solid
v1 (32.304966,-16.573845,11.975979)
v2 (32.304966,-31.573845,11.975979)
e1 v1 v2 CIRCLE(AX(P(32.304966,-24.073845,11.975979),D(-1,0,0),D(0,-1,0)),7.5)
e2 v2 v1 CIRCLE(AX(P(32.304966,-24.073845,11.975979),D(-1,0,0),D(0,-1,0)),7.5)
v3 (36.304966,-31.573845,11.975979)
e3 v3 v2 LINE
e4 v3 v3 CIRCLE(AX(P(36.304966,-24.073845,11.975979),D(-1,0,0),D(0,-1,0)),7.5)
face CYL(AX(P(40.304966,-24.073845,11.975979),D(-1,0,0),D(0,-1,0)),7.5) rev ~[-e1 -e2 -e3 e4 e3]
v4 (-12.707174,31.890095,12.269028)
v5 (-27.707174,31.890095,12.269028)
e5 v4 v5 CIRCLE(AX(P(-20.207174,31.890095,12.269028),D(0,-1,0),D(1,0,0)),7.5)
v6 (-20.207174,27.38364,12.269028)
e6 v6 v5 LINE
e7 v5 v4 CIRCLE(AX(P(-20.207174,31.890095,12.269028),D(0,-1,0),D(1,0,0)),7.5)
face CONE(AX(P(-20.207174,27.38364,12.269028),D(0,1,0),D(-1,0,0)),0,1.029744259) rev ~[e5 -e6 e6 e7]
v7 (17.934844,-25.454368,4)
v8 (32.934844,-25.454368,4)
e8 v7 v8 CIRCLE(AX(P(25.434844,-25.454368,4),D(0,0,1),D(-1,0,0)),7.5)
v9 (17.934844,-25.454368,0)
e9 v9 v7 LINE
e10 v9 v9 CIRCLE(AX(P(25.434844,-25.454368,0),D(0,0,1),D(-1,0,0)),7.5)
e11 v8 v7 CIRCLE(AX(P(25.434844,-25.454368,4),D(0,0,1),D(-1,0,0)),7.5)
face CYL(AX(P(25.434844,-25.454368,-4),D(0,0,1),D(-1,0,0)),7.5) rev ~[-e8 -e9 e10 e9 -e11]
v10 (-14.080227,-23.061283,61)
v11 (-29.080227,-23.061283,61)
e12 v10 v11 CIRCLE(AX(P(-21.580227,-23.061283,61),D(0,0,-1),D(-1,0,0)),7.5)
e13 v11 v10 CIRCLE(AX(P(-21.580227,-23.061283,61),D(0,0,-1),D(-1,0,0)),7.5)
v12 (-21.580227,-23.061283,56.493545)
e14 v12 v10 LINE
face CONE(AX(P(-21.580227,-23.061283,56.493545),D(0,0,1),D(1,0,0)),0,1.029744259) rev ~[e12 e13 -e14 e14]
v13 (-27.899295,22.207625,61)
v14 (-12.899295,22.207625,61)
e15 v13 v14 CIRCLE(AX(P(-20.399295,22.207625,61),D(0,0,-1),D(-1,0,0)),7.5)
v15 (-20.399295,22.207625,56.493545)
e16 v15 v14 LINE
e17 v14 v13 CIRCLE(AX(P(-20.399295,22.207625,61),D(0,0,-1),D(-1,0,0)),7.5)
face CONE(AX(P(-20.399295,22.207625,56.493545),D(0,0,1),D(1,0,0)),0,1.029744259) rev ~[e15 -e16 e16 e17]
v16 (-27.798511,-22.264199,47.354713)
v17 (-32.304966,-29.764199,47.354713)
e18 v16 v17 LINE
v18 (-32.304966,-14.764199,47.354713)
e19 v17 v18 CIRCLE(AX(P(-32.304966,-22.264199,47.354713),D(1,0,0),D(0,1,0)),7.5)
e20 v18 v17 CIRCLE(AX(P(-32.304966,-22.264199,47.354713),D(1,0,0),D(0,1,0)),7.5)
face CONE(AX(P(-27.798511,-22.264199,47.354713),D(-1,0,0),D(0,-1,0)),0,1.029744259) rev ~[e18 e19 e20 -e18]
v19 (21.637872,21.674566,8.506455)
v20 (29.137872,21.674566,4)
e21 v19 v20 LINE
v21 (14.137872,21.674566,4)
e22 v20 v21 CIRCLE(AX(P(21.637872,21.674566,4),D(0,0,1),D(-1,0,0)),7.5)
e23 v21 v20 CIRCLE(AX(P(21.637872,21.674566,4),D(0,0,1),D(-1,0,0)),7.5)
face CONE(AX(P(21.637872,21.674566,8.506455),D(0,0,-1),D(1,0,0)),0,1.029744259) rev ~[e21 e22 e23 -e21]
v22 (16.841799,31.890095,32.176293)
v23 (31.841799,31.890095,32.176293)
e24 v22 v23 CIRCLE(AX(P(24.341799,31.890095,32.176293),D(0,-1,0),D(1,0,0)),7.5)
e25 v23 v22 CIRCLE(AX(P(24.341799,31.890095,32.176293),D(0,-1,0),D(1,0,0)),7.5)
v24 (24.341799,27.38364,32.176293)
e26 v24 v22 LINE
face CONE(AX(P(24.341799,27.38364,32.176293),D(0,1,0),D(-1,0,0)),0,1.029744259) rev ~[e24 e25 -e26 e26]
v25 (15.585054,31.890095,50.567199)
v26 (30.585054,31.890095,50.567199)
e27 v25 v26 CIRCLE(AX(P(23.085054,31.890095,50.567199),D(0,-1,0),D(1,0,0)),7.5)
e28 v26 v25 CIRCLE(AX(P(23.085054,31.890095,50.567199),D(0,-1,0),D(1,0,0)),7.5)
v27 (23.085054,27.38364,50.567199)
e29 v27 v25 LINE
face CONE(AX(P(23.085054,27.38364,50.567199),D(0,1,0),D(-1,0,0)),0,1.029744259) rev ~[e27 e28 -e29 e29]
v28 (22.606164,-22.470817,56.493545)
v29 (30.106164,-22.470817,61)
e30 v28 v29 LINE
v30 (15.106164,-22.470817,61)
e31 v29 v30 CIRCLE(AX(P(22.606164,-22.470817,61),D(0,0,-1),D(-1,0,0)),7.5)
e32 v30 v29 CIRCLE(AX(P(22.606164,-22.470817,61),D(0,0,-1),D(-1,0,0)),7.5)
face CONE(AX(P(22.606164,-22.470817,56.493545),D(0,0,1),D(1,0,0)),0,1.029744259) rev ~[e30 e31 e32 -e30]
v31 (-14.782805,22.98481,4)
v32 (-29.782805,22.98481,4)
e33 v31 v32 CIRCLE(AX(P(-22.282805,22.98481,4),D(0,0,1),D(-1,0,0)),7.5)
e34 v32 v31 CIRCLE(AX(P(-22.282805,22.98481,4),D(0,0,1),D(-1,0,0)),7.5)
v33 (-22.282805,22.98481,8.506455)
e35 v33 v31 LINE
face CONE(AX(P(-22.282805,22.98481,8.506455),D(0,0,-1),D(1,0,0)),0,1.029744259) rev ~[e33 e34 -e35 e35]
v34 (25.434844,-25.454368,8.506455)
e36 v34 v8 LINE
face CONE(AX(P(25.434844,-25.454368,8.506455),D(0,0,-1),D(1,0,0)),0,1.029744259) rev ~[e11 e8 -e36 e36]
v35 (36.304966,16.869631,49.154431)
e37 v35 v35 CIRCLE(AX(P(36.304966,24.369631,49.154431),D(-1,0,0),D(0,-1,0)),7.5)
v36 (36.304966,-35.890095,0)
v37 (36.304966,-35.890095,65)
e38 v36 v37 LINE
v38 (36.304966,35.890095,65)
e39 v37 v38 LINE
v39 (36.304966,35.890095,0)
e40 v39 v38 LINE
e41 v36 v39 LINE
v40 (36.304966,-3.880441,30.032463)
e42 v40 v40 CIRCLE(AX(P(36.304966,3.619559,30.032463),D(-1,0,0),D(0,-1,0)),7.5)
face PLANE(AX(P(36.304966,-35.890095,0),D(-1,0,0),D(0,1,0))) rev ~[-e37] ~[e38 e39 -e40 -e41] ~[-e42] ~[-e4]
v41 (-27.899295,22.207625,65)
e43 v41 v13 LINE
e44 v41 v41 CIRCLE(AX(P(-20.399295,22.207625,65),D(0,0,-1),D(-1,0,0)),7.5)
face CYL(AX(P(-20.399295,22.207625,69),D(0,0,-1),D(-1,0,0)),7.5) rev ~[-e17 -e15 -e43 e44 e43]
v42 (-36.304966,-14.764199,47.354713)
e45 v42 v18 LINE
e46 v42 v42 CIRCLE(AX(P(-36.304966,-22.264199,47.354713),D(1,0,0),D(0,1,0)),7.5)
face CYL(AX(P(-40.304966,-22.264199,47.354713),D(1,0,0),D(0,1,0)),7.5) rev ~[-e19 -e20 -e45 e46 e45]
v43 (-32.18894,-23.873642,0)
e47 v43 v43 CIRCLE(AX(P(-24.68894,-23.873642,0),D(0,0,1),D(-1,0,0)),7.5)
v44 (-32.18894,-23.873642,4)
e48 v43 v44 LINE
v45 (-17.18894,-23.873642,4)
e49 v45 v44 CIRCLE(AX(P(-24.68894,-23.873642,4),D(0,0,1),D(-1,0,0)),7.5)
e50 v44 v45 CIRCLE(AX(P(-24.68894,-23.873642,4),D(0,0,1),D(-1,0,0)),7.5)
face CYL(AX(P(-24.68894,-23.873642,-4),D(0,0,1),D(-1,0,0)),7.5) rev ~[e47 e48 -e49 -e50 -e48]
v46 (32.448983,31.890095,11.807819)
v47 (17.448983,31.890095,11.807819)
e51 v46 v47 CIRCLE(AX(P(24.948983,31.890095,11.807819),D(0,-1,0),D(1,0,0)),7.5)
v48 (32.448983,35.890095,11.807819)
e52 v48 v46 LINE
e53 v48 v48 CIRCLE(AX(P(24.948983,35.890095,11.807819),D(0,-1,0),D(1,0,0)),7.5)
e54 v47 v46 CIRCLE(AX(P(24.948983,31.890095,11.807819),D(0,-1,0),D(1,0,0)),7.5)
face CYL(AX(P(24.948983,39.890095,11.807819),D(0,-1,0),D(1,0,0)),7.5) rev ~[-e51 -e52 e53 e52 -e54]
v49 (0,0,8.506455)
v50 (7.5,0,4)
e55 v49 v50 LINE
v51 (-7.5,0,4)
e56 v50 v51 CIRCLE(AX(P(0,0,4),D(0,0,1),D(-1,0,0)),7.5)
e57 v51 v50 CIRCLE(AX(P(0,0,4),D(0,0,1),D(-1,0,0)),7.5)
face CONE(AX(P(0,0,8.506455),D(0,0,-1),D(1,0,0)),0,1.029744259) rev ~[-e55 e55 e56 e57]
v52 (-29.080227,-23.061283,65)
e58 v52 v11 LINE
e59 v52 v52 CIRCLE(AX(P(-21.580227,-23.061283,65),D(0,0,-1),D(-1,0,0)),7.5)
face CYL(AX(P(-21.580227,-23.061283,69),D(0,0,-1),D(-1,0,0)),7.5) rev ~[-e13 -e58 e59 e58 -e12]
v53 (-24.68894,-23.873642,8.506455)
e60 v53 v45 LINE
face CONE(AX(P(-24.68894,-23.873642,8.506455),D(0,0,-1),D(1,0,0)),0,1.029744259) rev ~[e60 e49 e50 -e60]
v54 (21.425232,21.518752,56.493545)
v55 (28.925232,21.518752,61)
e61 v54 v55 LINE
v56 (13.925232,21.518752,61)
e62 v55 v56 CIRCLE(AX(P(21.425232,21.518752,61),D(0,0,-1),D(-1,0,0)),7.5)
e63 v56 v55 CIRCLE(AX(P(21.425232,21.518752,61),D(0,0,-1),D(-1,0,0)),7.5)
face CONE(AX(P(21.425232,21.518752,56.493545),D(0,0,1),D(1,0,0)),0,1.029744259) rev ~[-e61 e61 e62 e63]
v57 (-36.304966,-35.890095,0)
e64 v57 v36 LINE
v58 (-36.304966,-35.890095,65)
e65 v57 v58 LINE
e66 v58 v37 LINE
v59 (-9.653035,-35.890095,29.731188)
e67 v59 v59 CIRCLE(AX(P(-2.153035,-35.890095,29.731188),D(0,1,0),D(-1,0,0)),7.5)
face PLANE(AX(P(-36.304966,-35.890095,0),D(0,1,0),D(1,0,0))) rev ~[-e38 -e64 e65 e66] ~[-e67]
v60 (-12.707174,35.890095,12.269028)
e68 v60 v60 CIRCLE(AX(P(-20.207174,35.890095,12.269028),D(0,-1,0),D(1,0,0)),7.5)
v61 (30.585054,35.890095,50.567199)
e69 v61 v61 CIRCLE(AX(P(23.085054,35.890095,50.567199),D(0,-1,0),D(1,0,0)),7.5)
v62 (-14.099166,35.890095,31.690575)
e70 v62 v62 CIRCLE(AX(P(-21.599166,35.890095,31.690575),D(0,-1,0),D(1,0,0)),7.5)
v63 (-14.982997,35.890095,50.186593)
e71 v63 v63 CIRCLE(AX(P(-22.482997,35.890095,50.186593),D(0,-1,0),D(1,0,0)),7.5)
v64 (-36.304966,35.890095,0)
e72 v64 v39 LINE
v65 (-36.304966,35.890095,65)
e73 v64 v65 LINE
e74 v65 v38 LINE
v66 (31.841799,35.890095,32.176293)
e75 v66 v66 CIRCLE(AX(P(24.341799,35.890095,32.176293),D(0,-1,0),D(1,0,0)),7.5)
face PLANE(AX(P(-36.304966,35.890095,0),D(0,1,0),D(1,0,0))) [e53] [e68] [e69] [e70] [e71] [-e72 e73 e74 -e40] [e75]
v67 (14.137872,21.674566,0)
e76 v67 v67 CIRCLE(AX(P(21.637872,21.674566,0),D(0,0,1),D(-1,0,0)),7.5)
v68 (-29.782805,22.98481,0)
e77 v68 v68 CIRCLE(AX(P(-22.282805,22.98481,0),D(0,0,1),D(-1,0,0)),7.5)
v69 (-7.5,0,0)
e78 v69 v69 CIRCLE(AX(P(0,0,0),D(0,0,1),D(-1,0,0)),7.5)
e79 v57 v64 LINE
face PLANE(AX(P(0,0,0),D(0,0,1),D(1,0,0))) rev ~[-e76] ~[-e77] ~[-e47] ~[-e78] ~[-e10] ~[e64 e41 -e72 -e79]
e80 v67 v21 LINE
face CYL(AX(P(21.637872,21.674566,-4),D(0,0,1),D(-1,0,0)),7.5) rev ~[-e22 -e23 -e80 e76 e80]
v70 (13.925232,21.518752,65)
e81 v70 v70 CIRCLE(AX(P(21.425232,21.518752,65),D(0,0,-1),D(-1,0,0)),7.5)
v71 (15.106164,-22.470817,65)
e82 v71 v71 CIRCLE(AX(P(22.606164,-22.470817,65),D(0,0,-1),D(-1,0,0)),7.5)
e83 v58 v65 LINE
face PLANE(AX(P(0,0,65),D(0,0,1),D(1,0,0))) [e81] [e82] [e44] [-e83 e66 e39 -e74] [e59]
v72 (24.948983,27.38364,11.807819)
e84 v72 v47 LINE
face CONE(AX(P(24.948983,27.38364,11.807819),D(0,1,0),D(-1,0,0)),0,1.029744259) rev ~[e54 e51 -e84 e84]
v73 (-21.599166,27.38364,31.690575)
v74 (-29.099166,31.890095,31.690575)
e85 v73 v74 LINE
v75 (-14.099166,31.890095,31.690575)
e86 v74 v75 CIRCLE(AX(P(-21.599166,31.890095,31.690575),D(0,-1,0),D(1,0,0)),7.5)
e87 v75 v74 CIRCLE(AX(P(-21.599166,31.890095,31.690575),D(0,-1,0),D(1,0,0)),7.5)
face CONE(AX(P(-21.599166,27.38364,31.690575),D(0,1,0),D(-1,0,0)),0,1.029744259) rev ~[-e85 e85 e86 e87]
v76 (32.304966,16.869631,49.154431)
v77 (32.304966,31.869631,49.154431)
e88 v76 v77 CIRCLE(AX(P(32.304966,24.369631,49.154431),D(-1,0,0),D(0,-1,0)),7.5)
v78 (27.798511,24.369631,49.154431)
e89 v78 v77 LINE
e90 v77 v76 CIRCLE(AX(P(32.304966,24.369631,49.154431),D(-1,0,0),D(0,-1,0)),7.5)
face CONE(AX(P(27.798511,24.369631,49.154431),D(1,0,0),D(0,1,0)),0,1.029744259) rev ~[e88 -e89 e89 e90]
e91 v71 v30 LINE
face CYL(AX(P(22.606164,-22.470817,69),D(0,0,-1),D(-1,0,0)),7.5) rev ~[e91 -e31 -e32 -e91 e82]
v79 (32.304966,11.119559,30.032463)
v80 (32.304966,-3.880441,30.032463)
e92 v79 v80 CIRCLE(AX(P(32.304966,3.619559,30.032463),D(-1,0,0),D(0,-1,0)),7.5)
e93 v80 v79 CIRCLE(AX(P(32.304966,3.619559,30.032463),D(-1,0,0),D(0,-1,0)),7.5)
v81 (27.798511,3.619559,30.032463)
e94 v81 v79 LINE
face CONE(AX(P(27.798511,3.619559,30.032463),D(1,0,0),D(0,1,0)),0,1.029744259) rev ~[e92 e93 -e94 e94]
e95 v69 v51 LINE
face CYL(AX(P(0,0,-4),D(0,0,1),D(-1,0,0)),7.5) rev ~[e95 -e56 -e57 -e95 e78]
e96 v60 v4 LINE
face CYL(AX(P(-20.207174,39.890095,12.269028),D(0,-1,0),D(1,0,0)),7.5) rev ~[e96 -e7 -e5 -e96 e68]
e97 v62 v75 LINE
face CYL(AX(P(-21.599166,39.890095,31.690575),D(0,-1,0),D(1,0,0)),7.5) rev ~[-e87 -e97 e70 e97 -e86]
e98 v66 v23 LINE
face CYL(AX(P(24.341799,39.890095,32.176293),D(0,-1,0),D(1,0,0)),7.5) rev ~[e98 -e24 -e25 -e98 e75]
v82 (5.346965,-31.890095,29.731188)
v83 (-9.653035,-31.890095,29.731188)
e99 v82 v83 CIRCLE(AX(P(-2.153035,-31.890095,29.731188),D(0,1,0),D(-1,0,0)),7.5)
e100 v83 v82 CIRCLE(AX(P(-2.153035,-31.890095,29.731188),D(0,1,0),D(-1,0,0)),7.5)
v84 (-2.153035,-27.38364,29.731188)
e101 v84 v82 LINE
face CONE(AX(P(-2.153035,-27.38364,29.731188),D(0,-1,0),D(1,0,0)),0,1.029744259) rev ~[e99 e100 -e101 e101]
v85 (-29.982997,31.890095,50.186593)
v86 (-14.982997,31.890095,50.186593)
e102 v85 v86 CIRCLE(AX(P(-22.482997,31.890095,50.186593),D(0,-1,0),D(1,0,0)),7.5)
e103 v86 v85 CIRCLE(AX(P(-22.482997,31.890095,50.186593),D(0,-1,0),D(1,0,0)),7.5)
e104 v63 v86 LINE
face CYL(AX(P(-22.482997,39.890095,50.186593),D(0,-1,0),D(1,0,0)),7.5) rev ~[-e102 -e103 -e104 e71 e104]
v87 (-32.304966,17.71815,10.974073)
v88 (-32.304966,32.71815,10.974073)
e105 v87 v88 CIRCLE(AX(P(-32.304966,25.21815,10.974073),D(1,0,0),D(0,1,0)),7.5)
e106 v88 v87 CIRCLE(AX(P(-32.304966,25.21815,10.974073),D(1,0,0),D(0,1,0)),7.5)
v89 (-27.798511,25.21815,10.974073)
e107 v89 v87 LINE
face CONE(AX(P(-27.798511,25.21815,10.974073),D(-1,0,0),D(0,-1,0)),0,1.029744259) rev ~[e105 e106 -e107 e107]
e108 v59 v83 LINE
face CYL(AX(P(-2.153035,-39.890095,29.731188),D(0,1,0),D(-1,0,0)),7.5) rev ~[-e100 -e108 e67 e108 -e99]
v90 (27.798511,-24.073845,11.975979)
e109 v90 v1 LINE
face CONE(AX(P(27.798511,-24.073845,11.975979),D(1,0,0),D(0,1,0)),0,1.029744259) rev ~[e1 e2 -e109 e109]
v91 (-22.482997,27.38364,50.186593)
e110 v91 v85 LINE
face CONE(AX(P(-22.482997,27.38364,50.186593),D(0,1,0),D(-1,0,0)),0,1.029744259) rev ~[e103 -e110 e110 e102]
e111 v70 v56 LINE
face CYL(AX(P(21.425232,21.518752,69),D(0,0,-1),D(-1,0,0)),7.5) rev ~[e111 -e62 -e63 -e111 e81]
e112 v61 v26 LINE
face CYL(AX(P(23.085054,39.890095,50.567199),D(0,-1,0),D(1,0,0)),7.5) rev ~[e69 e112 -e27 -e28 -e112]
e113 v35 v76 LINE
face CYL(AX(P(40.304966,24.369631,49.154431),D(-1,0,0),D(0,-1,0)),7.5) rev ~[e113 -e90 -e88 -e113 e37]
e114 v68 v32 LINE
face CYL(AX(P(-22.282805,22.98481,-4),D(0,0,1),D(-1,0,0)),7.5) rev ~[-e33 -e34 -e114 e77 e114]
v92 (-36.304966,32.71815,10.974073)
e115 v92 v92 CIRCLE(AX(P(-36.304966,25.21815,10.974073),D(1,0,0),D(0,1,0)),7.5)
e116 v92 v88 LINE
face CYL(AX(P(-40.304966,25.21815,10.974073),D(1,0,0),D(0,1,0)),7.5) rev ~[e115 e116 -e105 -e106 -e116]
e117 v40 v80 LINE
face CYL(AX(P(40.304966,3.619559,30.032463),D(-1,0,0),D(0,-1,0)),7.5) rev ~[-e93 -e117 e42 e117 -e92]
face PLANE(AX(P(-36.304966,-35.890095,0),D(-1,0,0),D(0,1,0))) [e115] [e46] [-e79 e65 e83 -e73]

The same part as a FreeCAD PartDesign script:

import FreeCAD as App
import Part
import Sketcher
from FreeCAD import Vector
Q = App.Units.Quantity

doc = App.newDocument("Part")
body = doc.addObject("PartDesign::Body", "Body")

sketch1 = doc.addObject("Sketcher::SketchObject", "Sketch")
body.addObject(sketch1)
sketch1.AttachmentSupport = (doc.XY_Plane, [""])
sketch1.MapMode = "FlatFace"
sketch1.addGeometry(Part.LineSegment(Vector(-36.304966, 35.890095, 0), Vector(-36.304966, -35.890095, 0)), False)
sketch1.addGeometry(Part.LineSegment(Vector(-36.304966, -35.890095, 0), Vector(36.304966, -35.890095, 0)), False)
sketch1.addGeometry(Part.LineSegment(Vector(36.304966, -35.890095, 0), Vector(36.304966, 35.890095, 0)), False)
sketch1.addGeometry(Part.LineSegment(Vector(36.304966, 35.890095, 0), Vector(-36.304966, 35.890095, 0)), False)
sketch1.addConstraint(Sketcher.Constraint("Coincident", 0, 2, 1, 1))
sketch1.addConstraint(Sketcher.Constraint("Coincident", 1, 2, 2, 1))
sketch1.addConstraint(Sketcher.Constraint("Coincident", 2, 2, 3, 1))
sketch1.addConstraint(Sketcher.Constraint("Coincident", 3, 2, 0, 1))
sketch1.addConstraint(Sketcher.Constraint("Vertical", 0))
sketch1.addConstraint(Sketcher.Constraint("Horizontal", 1))
sketch1.addConstraint(Sketcher.Constraint("Vertical", 2))
sketch1.addConstraint(Sketcher.Constraint("Horizontal", 3))
sketch1.addConstraint(Sketcher.Constraint("Symmetric", 0, 2, 2, 2, -1, 1))
sketch1.addConstraint(Sketcher.Constraint("DistanceX", 1, 1, 1, 2, Q("72.609931 mm")))
sketch1.addConstraint(Sketcher.Constraint("DistanceY", 0, 2, 0, 1, Q("71.78019 mm")))
pad1 = doc.addObject("PartDesign::Pad", "Pad")
body.addObject(pad1)
pad1.Profile = sketch1
pad1.Length = 65

sketch2 = doc.addObject("Sketcher::SketchObject", "Sketch001")
body.addObject(sketch2)
sketch2.AttachmentSupport = (doc.XZ_Plane, [""])
sketch2.MapMode = "FlatFace"
sketch2.AttachmentOffset = App.Placement(Vector(0, 0, 35.890095), App.Rotation())
sketch2.addGeometry(Part.Circle(Vector(-2.153035, 29.731188, 0), Vector(0, 0, 1), 7.5), False)
sketch2.addConstraint(Sketcher.Constraint("Diameter", 0, Q("15 mm")))
sketch2.addConstraint(Sketcher.Constraint("DistanceX", 0, 3, -1, 1, Q("2.153035 mm")))
sketch2.addConstraint(Sketcher.Constraint("DistanceY", -1, 1, 0, 3, Q("29.731188 mm")))
doc.recompute()
hole = doc.addObject("PartDesign::Hole", "Hole")
body.addObject(hole)
hole.Profile = sketch2
hole.ThreadType = "None"
hole.Diameter = 15
hole.DepthType = "Dimension"
hole.Depth = 4
hole.DrillPoint = "Angled"
hole.DrillPointAngle = 118

sketch3 = doc.addObject("Sketcher::SketchObject", "Sketch002")
body.addObject(sketch3)
sketch3.AttachmentSupport = (doc.YZ_Plane, [""])
sketch3.MapMode = "FlatFace"
sketch3.AttachmentOffset = App.Placement(Vector(0, 0, -36.304966), App.Rotation())
sketch3.addGeometry(Part.Circle(Vector(-22.264199, 47.354713, 0), Vector(0, 0, 1), 7.5), False)
sketch3.addConstraint(Sketcher.Constraint("Diameter", 0, Q("15 mm")))
sketch3.addConstraint(Sketcher.Constraint("DistanceX", 0, 3, -1, 1, Q("22.264199 mm")))
sketch3.addConstraint(Sketcher.Constraint("DistanceY", -1, 1, 0, 3, Q("47.354713 mm")))
doc.recompute()
hole2 = doc.addObject("PartDesign::Hole", "Hole001")
body.addObject(hole2)
hole2.Profile = sketch3
hole2.ThreadType = "None"
hole2.Diameter = 15
hole2.DepthType = "Dimension"
hole2.Depth = 4
hole2.DrillPoint = "Angled"
hole2.DrillPointAngle = 118
hole2.Reversed = True

sketch4 = doc.addObject("Sketcher::SketchObject", "Sketch003")
body.addObject(sketch4)
sketch4.AttachmentSupport = (doc.YZ_Plane, [""])
sketch4.MapMode = "FlatFace"
sketch4.AttachmentOffset = App.Placement(Vector(0, 0, -36.304966), App.Rotation())
sketch4.addGeometry(Part.Circle(Vector(25.21815, 10.974073, 0), Vector(0, 0, 1), 7.5), False)
sketch4.addConstraint(Sketcher.Constraint("Diameter", 0, Q("15 mm")))
sketch4.addConstraint(Sketcher.Constraint("DistanceX", -1, 1, 0, 3, Q("25.21815 mm")))
sketch4.addConstraint(Sketcher.Constraint("DistanceY", -1, 1, 0, 3, Q("10.974073 mm")))
doc.recompute()
hole3 = doc.addObject("PartDesign::Hole", "Hole002")
body.addObject(hole3)
hole3.Profile = sketch4
hole3.ThreadType = "None"
hole3.Diameter = 15
hole3.DepthType = "Dimension"
hole3.Depth = 4
hole3.DrillPoint = "Angled"
hole3.DrillPointAngle = 118
hole3.Reversed = True

sketch5 = doc.addObject("Sketcher::SketchObject", "Sketch004")
body.addObject(sketch5)
sketch5.AttachmentSupport = (doc.XY_Plane, [""])
sketch5.MapMode = "FlatFace"
sketch5.AttachmentOffset = App.Placement(Vector(0, 0, 65), App.Rotation())
sketch5.addGeometry(Part.Circle(Vector(-20.399295, 22.207625, 0), Vector(0, 0, 1), 7.5), False)
sketch5.addConstraint(Sketcher.Constraint("Diameter", 0, Q("15 mm")))
sketch5.addConstraint(Sketcher.Constraint("DistanceX", 0, 3, -1, 1, Q("20.399295 mm")))
sketch5.addConstraint(Sketcher.Constraint("DistanceY", -1, 1, 0, 3, Q("22.207625 mm")))
doc.recompute()
hole4 = doc.addObject("PartDesign::Hole", "Hole003")
body.addObject(hole4)
hole4.Profile = sketch5
hole4.ThreadType = "None"
hole4.Diameter = 15
hole4.DepthType = "Dimension"
hole4.Depth = 4
hole4.DrillPoint = "Angled"
hole4.DrillPointAngle = 118

sketch6 = doc.addObject("Sketcher::SketchObject", "Sketch005")
body.addObject(sketch6)
sketch6.AttachmentSupport = (doc.XY_Plane, [""])
sketch6.MapMode = "FlatFace"
sketch6.AttachmentOffset = App.Placement(Vector(0, 0, 65), App.Rotation())
sketch6.addGeometry(Part.Circle(Vector(21.425232, 21.518752, 0), Vector(0, 0, 1), 7.5), False)
sketch6.addConstraint(Sketcher.Constraint("Diameter", 0, Q("15 mm")))
sketch6.addConstraint(Sketcher.Constraint("DistanceY", -1, 1, 0, 3, Q("21.518752 mm")))
sketch6.addConstraint(Sketcher.Constraint("DistanceX", -1, 1, 0, 3, Q("21.425232 mm")))
doc.recompute()
hole5 = doc.addObject("PartDesign::Hole", "Hole004")
body.addObject(hole5)
hole5.Profile = sketch6
hole5.ThreadType = "None"
hole5.Diameter = 15
hole5.DepthType = "Dimension"
hole5.Depth = 4
hole5.DrillPoint = "Angled"
hole5.DrillPointAngle = 118

sketch7 = doc.addObject("Sketcher::SketchObject", "Sketch006")
body.addObject(sketch7)
sketch7.AttachmentSupport = (doc.XY_Plane, [""])
sketch7.MapMode = "FlatFace"
sketch7.AttachmentOffset = App.Placement(Vector(0, 0, 65), App.Rotation())
sketch7.addGeometry(Part.Circle(Vector(-21.580227, -23.061283, 0), Vector(0, 0, 1), 7.5), False)
sketch7.addConstraint(Sketcher.Constraint("Diameter", 0, Q("15 mm")))
sketch7.addConstraint(Sketcher.Constraint("DistanceX", 0, 3, -1, 1, Q("21.580227 mm")))
sketch7.addConstraint(Sketcher.Constraint("DistanceY", 0, 3, -1, 1, Q("23.061283 mm")))
doc.recompute()
hole6 = doc.addObject("PartDesign::Hole", "Hole005")
body.addObject(hole6)
hole6.Profile = sketch7
hole6.ThreadType = "None"
hole6.Diameter = 15
hole6.DepthType = "Dimension"
hole6.Depth = 4
hole6.DrillPoint = "Angled"
hole6.DrillPointAngle = 118

sketch8 = doc.addObject("Sketcher::SketchObject", "Sketch007")
body.addObject(sketch8)
sketch8.AttachmentSupport = (doc.XY_Plane, [""])
sketch8.MapMode = "FlatFace"
sketch8.AttachmentOffset = App.Placement(Vector(0, 0, 65), App.Rotation())
sketch8.addGeometry(Part.Circle(Vector(22.606164, -22.470817, 0), Vector(0, 0, 1), 7.5), False)
sketch8.addConstraint(Sketcher.Constraint("Diameter", 0, Q("15 mm")))
sketch8.addConstraint(Sketcher.Constraint("DistanceX", -1, 1, 0, 3, Q("22.606164 mm")))
sketch8.addConstraint(Sketcher.Constraint("DistanceY", 0, 3, -1, 1, Q("22.470817 mm")))
doc.recompute()
hole7 = doc.addObject("PartDesign::Hole", "Hole006")
body.addObject(hole7)
hole7.Profile = sketch8
hole7.ThreadType = "None"
hole7.Diameter = 15
hole7.DepthType = "Dimension"
hole7.Depth = 4
hole7.DrillPoint = "Angled"
hole7.DrillPointAngle = 118

sketch9 = doc.addObject("Sketcher::SketchObject", "Sketch008")
body.addObject(sketch9)
sketch9.AttachmentSupport = (doc.XZ_Plane, [""])
sketch9.MapMode = "FlatFace"
sketch9.AttachmentOffset = App.Placement(Vector(0, 0, -35.890095), App.Rotation())
sketch9.addGeometry(Part.Circle(Vector(23.085054, 50.567199, 0), Vector(0, 0, 1), 7.5), False)
sketch9.addConstraint(Sketcher.Constraint("Diameter", 0, Q("15 mm")))
sketch9.addConstraint(Sketcher.Constraint("DistanceY", -1, 1, 0, 3, Q("50.567199 mm")))
sketch9.addConstraint(Sketcher.Constraint("DistanceX", -1, 1, 0, 3, Q("23.085054 mm")))
doc.recompute()
hole8 = doc.addObject("PartDesign::Hole", "Hole007")
body.addObject(hole8)
hole8.Profile = sketch9
hole8.ThreadType = "None"
hole8.Diameter = 15
hole8.DepthType = "Dimension"
hole8.Depth = 4
hole8.DrillPoint = "Angled"
hole8.DrillPointAngle = 118
hole8.Reversed = True

sketch10 = doc.addObject("Sketcher::SketchObject", "Sketch009")
body.addObject(sketch10)
sketch10.AttachmentSupport = (doc.XZ_Plane, [""])
sketch10.MapMode = "FlatFace"
sketch10.AttachmentOffset = App.Placement(Vector(0, 0, -35.890095), App.Rotation())
sketch10.addGeometry(Part.Circle(Vector(24.341799, 32.176293, 0), Vector(0, 0, 1), 7.5), False)
sketch10.addConstraint(Sketcher.Constraint("Diameter", 0, Q("15 mm")))
sketch10.addConstraint(Sketcher.Constraint("DistanceX", -1, 1, 0, 3, Q("24.341799 mm")))
sketch10.addConstraint(Sketcher.Constraint("DistanceY", -1, 1, 0, 3, Q("32.176293 mm")))
doc.recompute()
hole9 = doc.addObject("PartDesign::Hole", "Hole008")
body.addObject(hole9)
hole9.Profile = sketch10
hole9.ThreadType = "None"
hole9.Diameter = 15
hole9.DepthType = "Dimension"
hole9.Depth = 4
hole9.DrillPoint = "Angled"
hole9.DrillPointAngle = 118
hole9.Reversed = True

sketch11 = doc.addObject("Sketcher::SketchObject", "Sketch010")
body.addObject(sketch11)
sketch11.AttachmentSupport = (doc.XZ_Plane, [""])
sketch11.MapMode = "FlatFace"
sketch11.AttachmentOffset = App.Placement(Vector(0, 0, -35.890095), App.Rotation())
sketch11.addGeometry(Part.Circle(Vector(24.948983, 11.807819, 0), Vector(0, 0, 1), 7.5), False)
sketch11.addConstraint(Sketcher.Constraint("Diameter", 0, Q("15 mm")))
sketch11.addConstraint(Sketcher.Constraint("DistanceY", -1, 1, 0, 3, Q("11.807819 mm")))
sketch11.addConstraint(Sketcher.Constraint("DistanceX", -1, 1, 0, 3, Q("24.948983 mm")))
doc.recompute()
hole10 = doc.addObject("PartDesign::Hole", "Hole009")
body.addObject(hole10)
hole10.Profile = sketch11
hole10.ThreadType = "None"
hole10.Diameter = 15
hole10.DepthType = "Dimension"
hole10.Depth = 4
hole10.DrillPoint = "Angled"
hole10.DrillPointAngle = 118
hole10.Reversed = True

sketch12 = doc.addObject("Sketcher::SketchObject", "Sketch011")
body.addObject(sketch12)
sketch12.AttachmentSupport = (doc.XZ_Plane, [""])
sketch12.MapMode = "FlatFace"
sketch12.AttachmentOffset = App.Placement(Vector(0, 0, -35.890095), App.Rotation())
sketch12.addGeometry(Part.Circle(Vector(-22.482997, 50.186593, 0), Vector(0, 0, 1), 7.5), False)
sketch12.addConstraint(Sketcher.Constraint("Diameter", 0, Q("15 mm")))
sketch12.addConstraint(Sketcher.Constraint("DistanceX", 0, 3, -1, 1, Q("22.482997 mm")))
sketch12.addConstraint(Sketcher.Constraint("DistanceY", -1, 1, 0, 3, Q("50.186593 mm")))
doc.recompute()
hole11 = doc.addObject("PartDesign::Hole", "Hole010")
body.addObject(hole11)
hole11.Profile = sketch12
hole11.ThreadType = "None"
hole11.Diameter = 15
hole11.DepthType = "Dimension"
hole11.Depth = 4
hole11.DrillPoint = "Angled"
hole11.DrillPointAngle = 118
hole11.Reversed = True

sketch13 = doc.addObject("Sketcher::SketchObject", "Sketch012")
body.addObject(sketch13)
sketch13.AttachmentSupport = (doc.XZ_Plane, [""])
sketch13.MapMode = "FlatFace"
sketch13.AttachmentOffset = App.Placement(Vector(0, 0, -35.890095), App.Rotation())
sketch13.addGeometry(Part.Circle(Vector(-21.599166, 31.690575, 0), Vector(0, 0, 1), 7.5), False)
sketch13.addConstraint(Sketcher.Constraint("Diameter", 0, Q("15 mm")))
sketch13.addConstraint(Sketcher.Constraint("DistanceX", 0, 3, -1, 1, Q("21.599166 mm")))
sketch13.addConstraint(Sketcher.Constraint("DistanceY", -1, 1, 0, 3, Q("31.690575 mm")))
doc.recompute()
hole12 = doc.addObject("PartDesign::Hole", "Hole011")
body.addObject(hole12)
hole12.Profile = sketch13
hole12.ThreadType = "None"
hole12.Diameter = 15
hole12.DepthType = "Dimension"
hole12.Depth = 4
hole12.DrillPoint = "Angled"
hole12.DrillPointAngle = 118
hole12.Reversed = True

sketch14 = doc.addObject("Sketcher::SketchObject", "Sketch013")
body.addObject(sketch14)
sketch14.AttachmentSupport = (doc.XZ_Plane, [""])
sketch14.MapMode = "FlatFace"
sketch14.AttachmentOffset = App.Placement(Vector(0, 0, -35.890095), App.Rotation())
sketch14.addGeometry(Part.Circle(Vector(-20.207174, 12.269028, 0), Vector(0, 0, 1), 7.5), False)
sketch14.addConstraint(Sketcher.Constraint("Diameter", 0, Q("15 mm")))
sketch14.addConstraint(Sketcher.Constraint("DistanceX", 0, 3, -1, 1, Q("20.207174 mm")))
sketch14.addConstraint(Sketcher.Constraint("DistanceY", -1, 1, 0, 3, Q("12.269028 mm")))
doc.recompute()
hole13 = doc.addObject("PartDesign::Hole", "Hole012")
body.addObject(hole13)
hole13.Profile = sketch14
hole13.ThreadType = "None"
hole13.Diameter = 15
hole13.DepthType = "Dimension"
hole13.Depth = 4
hole13.DrillPoint = "Angled"
hole13.DrillPointAngle = 118
hole13.Reversed = True

sketch15 = doc.addObject("Sketcher::SketchObject", "Sketch014")
body.addObject(sketch15)
sketch15.AttachmentSupport = (doc.YZ_Plane, [""])
sketch15.MapMode = "FlatFace"
sketch15.AttachmentOffset = App.Placement(Vector(0, 0, 36.304966), App.Rotation())
sketch15.addGeometry(Part.Circle(Vector(24.369631, 49.154431, 0), Vector(0, 0, 1), 7.5), False)
sketch15.addConstraint(Sketcher.Constraint("Diameter", 0, Q("15 mm")))
sketch15.addConstraint(Sketcher.Constraint("DistanceX", -1, 1, 0, 3, Q("24.369631 mm")))
sketch15.addConstraint(Sketcher.Constraint("DistanceY", -1, 1, 0, 3, Q("49.154431 mm")))
doc.recompute()
hole14 = doc.addObject("PartDesign::Hole", "Hole013")
body.addObject(hole14)
hole14.Profile = sketch15
hole14.ThreadType = "None"
hole14.Diameter = 15
hole14.DepthType = "Dimension"
hole14.Depth = 4
hole14.DrillPoint = "Angled"
hole14.DrillPointAngle = 118

sketch16 = doc.addObject("Sketcher::SketchObject", "Sketch015")
body.addObject(sketch16)
sketch16.AttachmentSupport = (doc.YZ_Plane, [""])
sketch16.MapMode = "FlatFace"
sketch16.AttachmentOffset = App.Placement(Vector(0, 0, 36.304966), App.Rotation())
sketch16.addGeometry(Part.Circle(Vector(3.619559, 30.032463, 0), Vector(0, 0, 1), 7.5), False)
sketch16.addConstraint(Sketcher.Constraint("Diameter", 0, Q("15 mm")))
sketch16.addConstraint(Sketcher.Constraint("DistanceX", -1, 1, 0, 3, Q("3.619559 mm")))
sketch16.addConstraint(Sketcher.Constraint("DistanceY", -1, 1, 0, 3, Q("30.032463 mm")))
doc.recompute()
hole15 = doc.addObject("PartDesign::Hole", "Hole014")
body.addObject(hole15)
hole15.Profile = sketch16
hole15.ThreadType = "None"
hole15.Diameter = 15
hole15.DepthType = "Dimension"
hole15.Depth = 4
hole15.DrillPoint = "Angled"
hole15.DrillPointAngle = 118

sketch17 = doc.addObject("Sketcher::SketchObject", "Sketch016")
body.addObject(sketch17)
sketch17.AttachmentSupport = (doc.YZ_Plane, [""])
sketch17.MapMode = "FlatFace"
sketch17.AttachmentOffset = App.Placement(Vector(0, 0, 36.304966), App.Rotation())
sketch17.addGeometry(Part.Circle(Vector(-24.073845, 11.975979, 0), Vector(0, 0, 1), 7.5), False)
sketch17.addConstraint(Sketcher.Constraint("Diameter", 0, Q("15 mm")))
sketch17.addConstraint(Sketcher.Constraint("DistanceY", -1, 1, 0, 3, Q("11.975979 mm")))
sketch17.addConstraint(Sketcher.Constraint("DistanceX", 0, 3, -1, 1, Q("24.073845 mm")))
doc.recompute()
hole16 = doc.addObject("PartDesign::Hole", "Hole015")
body.addObject(hole16)
hole16.Profile = sketch17
hole16.ThreadType = "None"
hole16.Diameter = 15
hole16.DepthType = "Dimension"
hole16.Depth = 4
hole16.DrillPoint = "Angled"
hole16.DrillPointAngle = 118

sketch18 = doc.addObject("Sketcher::SketchObject", "Sketch017")
body.addObject(sketch18)
sketch18.AttachmentSupport = (doc.XY_Plane, [""])
sketch18.MapMode = "FlatFace"
sketch18.addGeometry(Part.Circle(Vector(-24.68894, -23.873642, 0), Vector(0, 0, 1), 7.5), False)
sketch18.addConstraint(Sketcher.Constraint("Diameter", 0, Q("15 mm")))
sketch18.addConstraint(Sketcher.Constraint("DistanceX", 0, 3, -1, 1, Q("24.68894 mm")))
sketch18.addConstraint(Sketcher.Constraint("DistanceY", 0, 3, -1, 1, Q("23.873642 mm")))
doc.recompute()
hole17 = doc.addObject("PartDesign::Hole", "Hole016")
body.addObject(hole17)
hole17.Profile = sketch18
hole17.ThreadType = "None"
hole17.Diameter = 15
hole17.DepthType = "Dimension"
hole17.Depth = 4
hole17.DrillPoint = "Angled"
hole17.DrillPointAngle = 118
hole17.Reversed = True

sketch19 = doc.addObject("Sketcher::SketchObject", "Sketch018")
body.addObject(sketch19)
sketch19.AttachmentSupport = (doc.XY_Plane, [""])
sketch19.MapMode = "FlatFace"
sketch19.addGeometry(Part.Circle(Vector(0, 0, 0), Vector(0, 0, 1), 7.5), False)
sketch19.addConstraint(Sketcher.Constraint("Coincident", 0, 3, -1, 1))
sketch19.addConstraint(Sketcher.Constraint("Diameter", 0, Q("15 mm")))
doc.recompute()
hole18 = doc.addObject("PartDesign::Hole", "Hole017")
body.addObject(hole18)
hole18.Profile = sketch19
hole18.ThreadType = "None"
hole18.Diameter = 15
hole18.DepthType = "Dimension"
hole18.Depth = 4
hole18.DrillPoint = "Angled"
hole18.DrillPointAngle = 118
hole18.Reversed = True

sketch20 = doc.addObject("Sketcher::SketchObject", "Sketch019")
body.addObject(sketch20)
sketch20.AttachmentSupport = (doc.XY_Plane, [""])
sketch20.MapMode = "FlatFace"
sketch20.addGeometry(Part.Circle(Vector(25.434844, -25.454368, 0), Vector(0, 0, 1), 7.5), False)
sketch20.addConstraint(Sketcher.Constraint("Diameter", 0, Q("15 mm")))
sketch20.addConstraint(Sketcher.Constraint("DistanceY", 0, 3, -1, 1, Q("25.454368 mm")))
sketch20.addConstraint(Sketcher.Constraint("DistanceX", -1, 1, 0, 3, Q("25.434844 mm")))
doc.recompute()
hole19 = doc.addObject("PartDesign::Hole", "Hole018")
body.addObject(hole19)
hole19.Profile = sketch20
hole19.ThreadType = "None"
hole19.Diameter = 15
hole19.DepthType = "Dimension"
hole19.Depth = 4
hole19.DrillPoint = "Angled"
hole19.DrillPointAngle = 118
hole19.Reversed = True

sketch21 = doc.addObject("Sketcher::SketchObject", "Sketch020")
body.addObject(sketch21)
sketch21.AttachmentSupport = (doc.XY_Plane, [""])
sketch21.MapMode = "FlatFace"
sketch21.addGeometry(Part.Circle(Vector(-22.282805, 22.98481, 0), Vector(0, 0, 1), 7.5), False)
sketch21.addConstraint(Sketcher.Constraint("Diameter", 0, Q("15 mm")))
sketch21.addConstraint(Sketcher.Constraint("DistanceY", -1, 1, 0, 3, Q("22.98481 mm")))
sketch21.addConstraint(Sketcher.Constraint("DistanceX", 0, 3, -1, 1, Q("22.282805 mm")))
doc.recompute()
hole20 = doc.addObject("PartDesign::Hole", "Hole019")
body.addObject(hole20)
hole20.Profile = sketch21
hole20.ThreadType = "None"
hole20.Diameter = 15
hole20.DepthType = "Dimension"
hole20.Depth = 4
hole20.DrillPoint = "Angled"
hole20.DrillPointAngle = 118
hole20.Reversed = True

sketch22 = doc.addObject("Sketcher::SketchObject", "Sketch021")
body.addObject(sketch22)
sketch22.AttachmentSupport = (doc.XY_Plane, [""])
sketch22.MapMode = "FlatFace"
sketch22.addGeometry(Part.Circle(Vector(21.637872, 21.674566, 0), Vector(0, 0, 1), 7.5), False)
sketch22.addConstraint(Sketcher.Constraint("Diameter", 0, Q("15 mm")))
sketch22.addConstraint(Sketcher.Constraint("DistanceX", -1, 1, 0, 3, Q("21.637872 mm")))
sketch22.addConstraint(Sketcher.Constraint("DistanceY", -1, 1, 0, 3, Q("21.674566 mm")))
doc.recompute()
hole21 = doc.addObject("PartDesign::Hole", "Hole020")
body.addObject(hole21)
hole21.Profile = sketch22
hole21.ThreadType = "None"
hole21.Diameter = 15
hole21.DepthType = "Dimension"
hole21.Depth = 4
hole21.DrillPoint = "Angled"
hole21.DrillPointAngle = 118
hole21.Reversed = True

doc.recompute()
